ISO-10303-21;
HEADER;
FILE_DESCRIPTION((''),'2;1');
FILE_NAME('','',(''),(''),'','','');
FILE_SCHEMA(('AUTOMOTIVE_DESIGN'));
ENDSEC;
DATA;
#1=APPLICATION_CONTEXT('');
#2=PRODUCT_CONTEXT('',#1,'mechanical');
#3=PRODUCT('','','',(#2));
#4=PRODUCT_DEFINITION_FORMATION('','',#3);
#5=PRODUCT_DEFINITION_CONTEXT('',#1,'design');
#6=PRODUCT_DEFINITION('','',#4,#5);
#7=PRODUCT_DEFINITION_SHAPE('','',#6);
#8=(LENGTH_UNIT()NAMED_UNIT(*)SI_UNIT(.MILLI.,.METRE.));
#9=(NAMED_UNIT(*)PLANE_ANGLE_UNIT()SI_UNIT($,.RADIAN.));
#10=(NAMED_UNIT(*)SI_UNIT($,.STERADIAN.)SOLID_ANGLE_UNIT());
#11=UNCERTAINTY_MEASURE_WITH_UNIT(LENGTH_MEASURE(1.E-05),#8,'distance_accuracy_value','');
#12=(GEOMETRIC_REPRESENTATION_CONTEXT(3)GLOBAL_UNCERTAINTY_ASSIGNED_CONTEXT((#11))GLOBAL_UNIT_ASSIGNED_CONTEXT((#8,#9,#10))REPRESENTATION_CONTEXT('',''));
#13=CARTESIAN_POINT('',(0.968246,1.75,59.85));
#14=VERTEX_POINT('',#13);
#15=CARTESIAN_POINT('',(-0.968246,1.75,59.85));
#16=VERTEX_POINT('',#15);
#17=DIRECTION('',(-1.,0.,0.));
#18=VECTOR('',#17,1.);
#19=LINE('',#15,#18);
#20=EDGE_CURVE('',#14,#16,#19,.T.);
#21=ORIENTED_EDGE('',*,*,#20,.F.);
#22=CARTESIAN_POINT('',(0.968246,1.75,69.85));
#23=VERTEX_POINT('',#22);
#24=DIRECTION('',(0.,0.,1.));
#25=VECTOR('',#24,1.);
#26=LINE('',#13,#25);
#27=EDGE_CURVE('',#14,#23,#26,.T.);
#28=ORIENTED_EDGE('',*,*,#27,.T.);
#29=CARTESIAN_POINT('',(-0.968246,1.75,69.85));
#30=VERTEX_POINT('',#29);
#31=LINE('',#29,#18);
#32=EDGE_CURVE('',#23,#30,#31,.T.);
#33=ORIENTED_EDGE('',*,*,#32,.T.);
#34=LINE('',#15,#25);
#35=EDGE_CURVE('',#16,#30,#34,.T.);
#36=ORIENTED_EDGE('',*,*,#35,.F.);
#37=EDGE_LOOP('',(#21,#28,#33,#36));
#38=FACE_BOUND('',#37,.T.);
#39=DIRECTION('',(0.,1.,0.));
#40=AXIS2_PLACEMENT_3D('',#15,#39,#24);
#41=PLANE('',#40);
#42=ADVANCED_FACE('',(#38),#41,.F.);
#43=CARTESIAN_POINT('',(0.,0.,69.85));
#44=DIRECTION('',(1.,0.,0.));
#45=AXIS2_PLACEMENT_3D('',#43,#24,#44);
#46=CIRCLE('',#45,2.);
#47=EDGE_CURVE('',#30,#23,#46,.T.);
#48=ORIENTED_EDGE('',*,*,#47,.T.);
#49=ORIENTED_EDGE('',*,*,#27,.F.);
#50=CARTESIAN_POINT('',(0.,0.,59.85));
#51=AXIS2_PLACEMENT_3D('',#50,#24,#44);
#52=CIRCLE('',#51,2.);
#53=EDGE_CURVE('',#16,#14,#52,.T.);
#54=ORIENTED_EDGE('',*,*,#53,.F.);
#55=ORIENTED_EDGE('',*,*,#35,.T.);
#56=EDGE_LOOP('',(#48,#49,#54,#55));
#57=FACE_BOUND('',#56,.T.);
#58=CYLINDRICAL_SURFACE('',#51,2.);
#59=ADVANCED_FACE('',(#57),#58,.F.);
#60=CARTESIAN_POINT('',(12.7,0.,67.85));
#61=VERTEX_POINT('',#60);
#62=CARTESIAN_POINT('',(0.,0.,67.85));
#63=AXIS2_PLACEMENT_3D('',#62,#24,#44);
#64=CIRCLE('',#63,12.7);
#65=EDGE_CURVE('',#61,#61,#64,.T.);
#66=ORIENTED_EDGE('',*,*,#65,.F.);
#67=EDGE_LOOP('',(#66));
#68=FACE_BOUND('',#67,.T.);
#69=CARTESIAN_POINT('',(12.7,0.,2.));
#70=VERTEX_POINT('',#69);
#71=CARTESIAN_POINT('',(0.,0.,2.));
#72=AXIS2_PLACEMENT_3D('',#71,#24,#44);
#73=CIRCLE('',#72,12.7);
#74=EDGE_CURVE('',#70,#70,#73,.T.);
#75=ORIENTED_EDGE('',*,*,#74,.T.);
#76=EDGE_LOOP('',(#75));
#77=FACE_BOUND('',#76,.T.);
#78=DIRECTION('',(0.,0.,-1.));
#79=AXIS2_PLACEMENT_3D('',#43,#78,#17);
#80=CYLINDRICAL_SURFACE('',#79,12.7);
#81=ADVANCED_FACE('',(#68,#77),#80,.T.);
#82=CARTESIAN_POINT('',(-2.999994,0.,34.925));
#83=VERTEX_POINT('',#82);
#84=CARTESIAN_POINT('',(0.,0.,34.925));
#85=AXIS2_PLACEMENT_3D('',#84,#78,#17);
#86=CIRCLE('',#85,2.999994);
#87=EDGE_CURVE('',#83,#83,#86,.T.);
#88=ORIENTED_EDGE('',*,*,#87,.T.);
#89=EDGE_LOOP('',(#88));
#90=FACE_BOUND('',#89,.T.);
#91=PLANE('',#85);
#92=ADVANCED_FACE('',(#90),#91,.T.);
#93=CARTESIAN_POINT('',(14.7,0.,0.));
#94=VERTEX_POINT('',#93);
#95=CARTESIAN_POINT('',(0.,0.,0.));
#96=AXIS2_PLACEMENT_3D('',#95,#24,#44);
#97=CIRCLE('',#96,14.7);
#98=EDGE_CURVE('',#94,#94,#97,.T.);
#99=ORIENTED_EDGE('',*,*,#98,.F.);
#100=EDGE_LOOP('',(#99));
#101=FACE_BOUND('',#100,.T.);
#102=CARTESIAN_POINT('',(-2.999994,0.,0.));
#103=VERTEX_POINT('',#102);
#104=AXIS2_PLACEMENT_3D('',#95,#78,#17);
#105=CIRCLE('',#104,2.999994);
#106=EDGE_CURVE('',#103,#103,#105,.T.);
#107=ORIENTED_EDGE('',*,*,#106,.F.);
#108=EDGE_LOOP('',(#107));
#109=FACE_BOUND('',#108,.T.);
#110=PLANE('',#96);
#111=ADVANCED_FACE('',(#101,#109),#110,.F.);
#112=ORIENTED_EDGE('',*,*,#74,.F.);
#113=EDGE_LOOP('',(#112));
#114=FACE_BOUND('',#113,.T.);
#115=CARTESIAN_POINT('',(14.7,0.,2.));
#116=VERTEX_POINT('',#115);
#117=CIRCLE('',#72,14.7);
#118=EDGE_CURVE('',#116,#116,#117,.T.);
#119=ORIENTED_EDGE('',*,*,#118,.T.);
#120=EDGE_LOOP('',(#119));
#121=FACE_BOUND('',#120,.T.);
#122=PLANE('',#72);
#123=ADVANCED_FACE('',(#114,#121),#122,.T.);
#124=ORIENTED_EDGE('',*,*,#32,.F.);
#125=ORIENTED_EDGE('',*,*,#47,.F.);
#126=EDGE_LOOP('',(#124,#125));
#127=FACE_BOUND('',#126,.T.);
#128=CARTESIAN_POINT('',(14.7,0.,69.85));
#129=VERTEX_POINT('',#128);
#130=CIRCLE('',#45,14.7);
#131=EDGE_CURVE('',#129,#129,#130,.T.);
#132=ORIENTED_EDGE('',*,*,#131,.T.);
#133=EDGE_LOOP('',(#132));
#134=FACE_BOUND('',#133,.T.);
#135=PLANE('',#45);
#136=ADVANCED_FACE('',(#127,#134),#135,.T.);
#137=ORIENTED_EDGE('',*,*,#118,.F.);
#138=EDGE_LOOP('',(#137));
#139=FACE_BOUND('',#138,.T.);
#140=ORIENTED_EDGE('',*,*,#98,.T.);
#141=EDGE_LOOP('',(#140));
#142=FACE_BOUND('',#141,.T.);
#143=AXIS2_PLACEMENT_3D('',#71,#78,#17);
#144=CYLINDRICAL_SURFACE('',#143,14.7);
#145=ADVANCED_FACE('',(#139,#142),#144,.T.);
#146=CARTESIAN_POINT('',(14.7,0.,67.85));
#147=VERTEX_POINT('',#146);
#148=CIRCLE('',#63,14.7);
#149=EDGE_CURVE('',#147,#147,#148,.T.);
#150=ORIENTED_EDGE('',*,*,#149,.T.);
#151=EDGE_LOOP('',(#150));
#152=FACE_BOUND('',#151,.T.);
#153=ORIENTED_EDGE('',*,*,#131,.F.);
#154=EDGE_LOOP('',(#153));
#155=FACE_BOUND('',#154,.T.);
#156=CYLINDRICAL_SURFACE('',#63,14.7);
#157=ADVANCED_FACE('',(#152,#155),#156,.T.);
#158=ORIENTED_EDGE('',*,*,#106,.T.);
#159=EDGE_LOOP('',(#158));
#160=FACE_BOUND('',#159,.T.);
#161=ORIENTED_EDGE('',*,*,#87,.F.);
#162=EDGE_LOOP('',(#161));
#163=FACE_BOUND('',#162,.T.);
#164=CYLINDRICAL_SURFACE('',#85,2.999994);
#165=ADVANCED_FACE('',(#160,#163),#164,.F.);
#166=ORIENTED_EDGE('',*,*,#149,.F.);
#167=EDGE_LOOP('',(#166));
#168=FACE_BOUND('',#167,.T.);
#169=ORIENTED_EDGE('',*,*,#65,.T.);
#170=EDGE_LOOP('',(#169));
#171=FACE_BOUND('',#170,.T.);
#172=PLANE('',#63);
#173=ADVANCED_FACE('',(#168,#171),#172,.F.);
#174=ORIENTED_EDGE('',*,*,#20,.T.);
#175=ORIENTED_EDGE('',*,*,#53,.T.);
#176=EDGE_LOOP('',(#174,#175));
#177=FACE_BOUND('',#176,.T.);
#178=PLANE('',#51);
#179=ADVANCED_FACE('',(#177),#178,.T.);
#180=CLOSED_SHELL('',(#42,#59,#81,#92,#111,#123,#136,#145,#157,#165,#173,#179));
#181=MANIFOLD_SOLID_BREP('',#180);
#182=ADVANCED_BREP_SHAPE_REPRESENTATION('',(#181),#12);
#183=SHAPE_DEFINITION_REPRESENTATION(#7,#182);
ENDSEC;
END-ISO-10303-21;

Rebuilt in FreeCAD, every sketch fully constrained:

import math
import FreeCAD as App
import Part
import Sketcher

V = App.Vector
Q = App.Units.Quantity

doc = App.newDocument("Part")
body = doc.addObject("PartDesign::Body", "Body")

# Sketch on XY plane
sketch1 = doc.addObject("Sketcher::SketchObject", "Sketch")
body.addObject(sketch1)
sketch1.AttachmentSupport = (doc.XY_Plane, [""])
sketch1.MapMode = "FlatFace"
sketch1.addGeometry(Part.Circle(V(0, 0, 0), V(0, 0, 1), 13), False)
sketch1.addConstraint([
    Sketcher.Constraint("Coincident", 0, 3, -1, 1),
    Sketcher.Constraint("Diameter", 0, Q("25.4 mm")),
])
pad1 = doc.addObject("PartDesign::Pad", "Pad")
body.addObject(pad1)
pad1.Profile = sketch1
pad1.Length = 69.85

# Sketch on XY plane
sketch2 = doc.addObject("Sketcher::SketchObject", "Sketch001")
body.addObject(sketch2)
sketch2.AttachmentSupport = (doc.XY_Plane, [""])
sketch2.MapMode = "FlatFace"
sketch2.AttachmentOffset = App.Placement(V(0, 0, 69.85), App.Rotation())
sketch2.addGeometry([
    Part.LineSegment(V(1, 1.8, 0), V(-1, 1.8, 0)),
    Part.ArcOfCircle(Part.Circle(V(0, 0, 0), V(0, 0, 1), 2), math.radians(119), math.radians(421)),
], False)
sketch2.addConstraint([
    Sketcher.Constraint("Coincident", 0, 1, 1, 2),
    Sketcher.Constraint("Coincident", 1, 1, 0, 2),
    Sketcher.Constraint("Horizontal", 0),
    Sketcher.Constraint("Coincident", 1, 3, -1, 1),
    Sketcher.Constraint("Radius", 1, Q("2 mm")),
    Sketcher.Constraint("DistanceY", -1, 1, 0, 1, Q("1.75 mm")),
])
pocket1 = doc.addObject("PartDesign::Pocket", "Pocket")
body.addObject(pocket1)
pocket1.Profile = sketch2
pocket1.Length = 10

# Sketch on XY plane
sketch3 = doc.addObject("Sketcher::SketchObject", "Sketch002")
body.addObject(sketch3)
sketch3.AttachmentSupport = (doc.XY_Plane, [""])
sketch3.MapMode = "FlatFace"
sketch3.addGeometry(Part.Circle(V(0, 0, 0), V(0, 0, 1), 3), False)
sketch3.addConstraint([
    Sketcher.Constraint("Coincident", 0, 3, -1, 1),
    Sketcher.Constraint("Diameter", 0, Q("5.999988 mm")),
])
pocket2 = doc.addObject("PartDesign::Pocket", "Pocket001")
body.addObject(pocket2)
pocket2.Profile = sketch3
pocket2.Length = 34.925
pocket2.Reversed = True

# Sketch on XY plane
sketch4 = doc.addObject("Sketcher::SketchObject", "Sketch003")
body.addObject(sketch4)
sketch4.AttachmentSupport = (doc.XY_Plane, [""])
sketch4.MapMode = "FlatFace"
sketch4.addGeometry([
    Part.Circle(V(0, 0, 0), V(0, 0, 1), 14.7),
    Part.Circle(V(0, 0, 0), V(0, 0, 1), 3),
], False)
sketch4.addConstraint([
    Sketcher.Constraint("Coincident", 0, 3, -1, 1),
    Sketcher.Constraint("Coincident", 1, 3, -1, 1),
    Sketcher.Constraint("Diameter", 0, Q("29.4 mm")),
    Sketcher.Constraint("Diameter", 1, Q("5.999988 mm")),
])
pad2 = doc.addObject("PartDesign::Pad", "Pad001")
body.addObject(pad2)
pad2.Profile = sketch4
pad2.Length = 2

# Sketch on XY plane
sketch5 = doc.addObject("Sketcher::SketchObject", "Sketch004")
body.addObject(sketch5)
sketch5.AttachmentSupport = (doc.XY_Plane, [""])
sketch5.MapMode = "FlatFace"
sketch5.AttachmentOffset = App.Placement(V(0, 0, 69.85), App.Rotation())
sketch5.addGeometry([
    Part.Circle(V(0, 0, 0), V(0, 0, 1), 14.7),
    Part.ArcOfCircle(Part.Circle(V(0, 0, 0), V(0, 0, 1), 2), math.radians(119), math.radians(421)),
    Part.LineSegment(V(-1, 1.8, 0), V(1, 1.8, 0)),
], False)
sketch5.addConstraint([
    Sketcher.Constraint("Coincident", 1, 1, 2, 1),
    Sketcher.Constraint("Coincident", 2, 2, 1, 2),
    Sketcher.Constraint("Horizontal", 2),
    Sketcher.Constraint("Coincident", 0, 3, -1, 1),
    Sketcher.Constraint("Coincident", 1, 3, -1, 1),
    Sketcher.Constraint("Radius", 1, Q("2 mm")),
    Sketcher.Constraint("Diameter", 0, Q("29.4 mm")),
    Sketcher.Constraint("DistanceY", -1, 1, 1, 1, Q("1.75 mm")),
])
pad3 = doc.addObject("PartDesign::Pad", "Pad002")
body.addObject(pad3)
pad3.Profile = sketch5
pad3.Length = 2
pad3.Reversed = True

doc.recompute()
